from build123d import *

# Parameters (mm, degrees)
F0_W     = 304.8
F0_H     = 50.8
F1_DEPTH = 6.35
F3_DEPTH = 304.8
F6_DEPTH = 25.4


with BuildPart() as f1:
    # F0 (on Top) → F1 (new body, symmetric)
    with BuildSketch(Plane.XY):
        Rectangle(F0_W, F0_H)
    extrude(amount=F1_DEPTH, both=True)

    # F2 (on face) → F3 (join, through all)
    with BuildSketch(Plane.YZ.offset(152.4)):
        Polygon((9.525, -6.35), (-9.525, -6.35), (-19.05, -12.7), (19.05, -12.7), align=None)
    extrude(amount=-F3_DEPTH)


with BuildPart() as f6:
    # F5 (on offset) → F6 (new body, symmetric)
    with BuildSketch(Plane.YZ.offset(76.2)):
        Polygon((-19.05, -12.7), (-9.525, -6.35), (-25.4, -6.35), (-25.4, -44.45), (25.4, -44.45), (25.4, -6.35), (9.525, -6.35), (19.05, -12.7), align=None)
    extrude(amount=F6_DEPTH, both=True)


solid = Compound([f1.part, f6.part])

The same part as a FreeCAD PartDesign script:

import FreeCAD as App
import Part
import Sketcher
Q = App.Units.Quantity


def add_polygon(sketch, points):
    """Adds a closed chain of lines whose ends are joined by coincident constraints."""
    first, n = sketch.GeometryCount, len(points)
    for a, b in zip(points, points[1:] + points[:1]):
        sketch.addGeometry(Part.LineSegment(App.Vector(*a, 0), App.Vector(*b, 0)), False)
    for i in range(n):
        sketch.addConstraint(Sketcher.Constraint("Coincident", first + i, 2, first + (i + 1) % n, 1))

doc = App.newDocument("Part")
body = doc.addObject("PartDesign::Body", "Body")

sketch1 = doc.addObject("Sketcher::SketchObject", "Sketch")
body.addObject(sketch1)
sketch1.AttachmentSupport = (doc.XY_Plane, [""])
sketch1.MapMode = "FlatFace"
add_polygon(sketch1, [(-152, 25), (-152, -25), (152, -25), (152, 25)])
sketch1.addConstraint(Sketcher.Constraint("Vertical", 0))
sketch1.addConstraint(Sketcher.Constraint("Horizontal", 1))
sketch1.addConstraint(Sketcher.Constraint("Vertical", 2))
sketch1.addConstraint(Sketcher.Constraint("Horizontal", 3))
sketch1.addConstraint(Sketcher.Constraint("Symmetric", 0, 2, 2, 2, -1, 1))
sketch1.addConstraint(Sketcher.Constraint("DistanceX", 1, 1, 1, 2, Q("12 in")))
sketch1.addConstraint(Sketcher.Constraint("DistanceY", 0, 2, 0, 1, Q("2 in")))
pad1 = doc.addObject("PartDesign::Pad", "Pad")
body.addObject(pad1)
pad1.Profile = sketch1
pad1.Length = Q("0.5 in")
pad1.Midplane = True

sketch2 = doc.addObject("Sketcher::SketchObject", "Sketch001")
body.addObject(sketch2)
sketch2.AttachmentSupport = (doc.YZ_Plane, [""])
sketch2.MapMode = "FlatFace"
sketch2.AttachmentOffset = App.Placement(App.Vector(0, 0, 6 * 25.4), App.Rotation())
add_polygon(sketch2, [(10, -6), (-10, -6), (-19, -13), (19, -13)])
sketch2.addConstraint(Sketcher.Constraint("Horizontal", 0))
sketch2.addConstraint(Sketcher.Constraint("Horizontal", 2))
sketch2.addConstraint(Sketcher.Constraint("Equal", 1, 3))
sketch2.addConstraint(Sketcher.Constraint("DistanceX", 2, 1, 2, 2, Q("1.5 in")))
sketch2.addConstraint(Sketcher.Constraint("DistanceX", 0, 2, 0, 1, Q("0.75 in")))
sketch2.addConstraint(Sketcher.Constraint("DistanceY", 1, 2, -1, 1, Q("0.5 in")))
sketch2.addConstraint(Sketcher.Constraint("DistanceY", 0, 2, -1, 1, Q("0.25 in")))
sketch2.addConstraint(Sketcher.Constraint("DistanceX", 1, 2, -1, 1, Q("0.75 in")))
pad2 = doc.addObject("PartDesign::Pad", "Pad001")
body.addObject(pad2)
pad2.Profile = sketch2
pad2.Length = Q("12 in")
pad2.Reversed = True
body2 = doc.addObject("PartDesign::Body", "Body001")

sketch3 = doc.addObject("Sketcher::SketchObject", "Sketch002")
body2.addObject(sketch3)
sketch3.AttachmentSupport = (doc.getObject("YZ_Plane001"), [""])
sketch3.MapMode = "FlatFace"
sketch3.AttachmentOffset = App.Placement(App.Vector(0, 0, 3 * 25.4), App.Rotation())
add_polygon(sketch3, [(-19, -13), (-10, -6), (-25, -6), (-25, -44), (25, -44), (25, -6), (10, -6), (19, -13)])
sketch3.addConstraint(Sketcher.Constraint("Horizontal", 1))
sketch3.addConstraint(Sketcher.Constraint("Vertical", 2))
sketch3.addConstraint(Sketcher.Constraint("Horizontal", 3))
sketch3.addConstraint(Sketcher.Constraint("Vertical", 4))
sketch3.addConstraint(Sketcher.Constraint("Horizontal", 5))
sketch3.addConstraint(Sketcher.Constraint("Horizontal", 7))
sketch3.addConstraint(Sketcher.Constraint("Symmetric", 1, 2, 4, 2, -2))
sketch3.addConstraint(Sketcher.Constraint("Equal", 1, 5))
sketch3.addConstraint(Sketcher.Constraint("Equal", 7, 2))
sketch3.addConstraint(Sketcher.Constraint("Equal", 0, 6))
sketch3.addConstraint(Sketcher.Constraint("DistanceX", 3, 1, 3, 2, Q("2 in")))
sketch3.addConstraint(Sketcher.Constraint("DistanceX", 7, 2, 7, 1, Q("1.5 in")))
sketch3.addConstraint(Sketcher.Constraint("DistanceY", 6, 2, -1, 1, Q("0.5 in")))
sketch3.addConstraint(Sketcher.Constraint("DistanceX", 1, 2, 1, 1, Q("0.625 in")))
sketch3.addConstraint(Sketcher.Constraint("DistanceY", 0, 2, -1, 1, Q("0.25 in")))
pad3 = doc.addObject("PartDesign::Pad", "Pad002")
body2.addObject(pad3)
pad3.Profile = sketch3
pad3.Length = Q("2 in")
pad3.Midplane = True

doc.recompute()
